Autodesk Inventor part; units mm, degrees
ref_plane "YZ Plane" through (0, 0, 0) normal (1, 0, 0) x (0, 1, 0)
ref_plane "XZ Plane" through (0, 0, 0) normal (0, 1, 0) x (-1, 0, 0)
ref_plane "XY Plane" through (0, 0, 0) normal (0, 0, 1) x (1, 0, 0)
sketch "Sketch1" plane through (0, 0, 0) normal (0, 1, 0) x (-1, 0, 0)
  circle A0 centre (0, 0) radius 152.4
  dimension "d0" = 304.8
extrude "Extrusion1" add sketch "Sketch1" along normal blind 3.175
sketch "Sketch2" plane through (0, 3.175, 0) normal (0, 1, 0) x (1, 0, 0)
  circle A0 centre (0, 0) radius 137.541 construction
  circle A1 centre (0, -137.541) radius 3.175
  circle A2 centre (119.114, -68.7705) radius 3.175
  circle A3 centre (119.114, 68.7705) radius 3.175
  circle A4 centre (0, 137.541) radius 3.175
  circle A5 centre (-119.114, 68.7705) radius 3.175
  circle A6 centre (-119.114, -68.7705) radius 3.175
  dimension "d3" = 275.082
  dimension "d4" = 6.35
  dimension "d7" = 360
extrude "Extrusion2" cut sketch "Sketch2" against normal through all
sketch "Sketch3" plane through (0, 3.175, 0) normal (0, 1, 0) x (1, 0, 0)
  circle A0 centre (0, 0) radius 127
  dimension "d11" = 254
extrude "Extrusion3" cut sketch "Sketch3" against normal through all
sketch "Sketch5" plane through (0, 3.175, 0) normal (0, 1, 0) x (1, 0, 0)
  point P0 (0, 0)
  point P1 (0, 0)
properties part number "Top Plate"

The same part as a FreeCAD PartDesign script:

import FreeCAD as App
import Part
import Sketcher

V = App.Vector
Q = App.Units.Quantity

doc = App.newDocument("Part")
body = doc.addObject("PartDesign::Body", "Body")

sketch1 = body.newObject("Sketcher::SketchObject", "Sketch")
sketch1.AttachmentSupport = (doc.getObject("XZ_Plane"), [""])
sketch1.MapMode = "FlatFace"
sketch1.addGeometry(Part.Circle(V(0, 0, 0), V(0, 0, 1), 152), False)
sketch1.addConstraint(Sketcher.Constraint("Coincident", 0, 3, -1, 1))
sketch1.addConstraint(Sketcher.Constraint("Diameter", 0, Q("12 in")))
pad1 = body.newObject("PartDesign::Pad", "Pad")
pad1.Profile = sketch1
pad1.Length = Q("0.125 in")
pad1.Reversed = True

sketch2 = body.newObject("Sketcher::SketchObject", "Sketch001")
sketch2.AttachmentSupport = (doc.getObject("XZ_Plane"), [""])
sketch2.MapMode = "FlatFace"
sketch2.AttachmentOffset = App.Placement(V(0, 0, -0.125 * 25.4), App.Rotation())
sketch2.addGeometry(Part.Circle(V(0, 137.5, 0), V(0, 0, 1), 3.2), False)
sketch2.addGeometry(Part.Circle(V(119.1, 68.8, 0), V(0, 0, 1), 3.2), False)
sketch2.addGeometry(Part.Circle(V(119.1, -68.8, 0), V(0, 0, 1), 3.2), False)
sketch2.addGeometry(Part.Circle(V(0, -137.5, 0), V(0, 0, 1), 3.2), False)
sketch2.addGeometry(Part.Circle(V(-119.1, -68.8, 0), V(0, 0, 1), 3.2), False)
sketch2.addGeometry(Part.Circle(V(-119.1, 68.8, 0), V(0, 0, 1), 3.2), False)
sketch2.addConstraint(Sketcher.Constraint("Equal", 0, 1))
sketch2.addConstraint(Sketcher.Constraint("Equal", 1, 2))
sketch2.addConstraint(Sketcher.Constraint("Equal", 2, 3))
sketch2.addConstraint(Sketcher.Constraint("Equal", 3, 4))
sketch2.addConstraint(Sketcher.Constraint("Equal", 4, 5))
sketch2.addConstraint(Sketcher.Constraint("Symmetric", 0, 3, 3, 3, -1, 1))
sketch2.addConstraint(Sketcher.Constraint("Symmetric", 1, 3, 4, 3, -1, 1))
sketch2.addConstraint(Sketcher.Constraint("Symmetric", 2, 3, 5, 3, -1, 1))
sketch2.addConstraint(Sketcher.Constraint("Symmetric", 2, 3, 4, 3, -2))
sketch2.addConstraint(Sketcher.Constraint("PointOnObject", 0, 3, -2))
sketch2.addConstraint(Sketcher.Constraint("Diameter", 0, Q("0.25 in")))
sketch2.addConstraint(Sketcher.Constraint("DistanceY", 3, 3, 0, 3, Q("10.83 in")))
sketch2.addConstraint(Sketcher.Constraint("DistanceY", 2, 3, 1, 3, Q("5.415 in")))
sketch2.addConstraint(Sketcher.Constraint("DistanceX", -1, 1, 1, 3, Q("119.114 mm")))
pocket1 = body.newObject("PartDesign::Pocket", "Pocket")
pocket1.Profile = sketch2
pocket1.Type = "ThroughAll"
pocket1.Reversed = True

sketch3 = body.newObject("Sketcher::SketchObject", "Sketch002")
sketch3.AttachmentSupport = (doc.getObject("XZ_Plane"), [""])
sketch3.MapMode = "FlatFace"
sketch3.AttachmentOffset = App.Placement(V(0, 0, -0.125 * 25.4), App.Rotation())
sketch3.addGeometry(Part.Circle(V(0, 0, 0), V(0, 0, 1), 127), False)
sketch3.addConstraint(Sketcher.Constraint("Coincident", 0, 3, -1, 1))
sketch3.addConstraint(Sketcher.Constraint("Diameter", 0, Q("10 in")))
pocket2 = body.newObject("PartDesign::Pocket", "Pocket001")
pocket2.Profile = sketch3
pocket2.Type = "ThroughAll"
pocket2.Reversed = True

doc.recompute()
